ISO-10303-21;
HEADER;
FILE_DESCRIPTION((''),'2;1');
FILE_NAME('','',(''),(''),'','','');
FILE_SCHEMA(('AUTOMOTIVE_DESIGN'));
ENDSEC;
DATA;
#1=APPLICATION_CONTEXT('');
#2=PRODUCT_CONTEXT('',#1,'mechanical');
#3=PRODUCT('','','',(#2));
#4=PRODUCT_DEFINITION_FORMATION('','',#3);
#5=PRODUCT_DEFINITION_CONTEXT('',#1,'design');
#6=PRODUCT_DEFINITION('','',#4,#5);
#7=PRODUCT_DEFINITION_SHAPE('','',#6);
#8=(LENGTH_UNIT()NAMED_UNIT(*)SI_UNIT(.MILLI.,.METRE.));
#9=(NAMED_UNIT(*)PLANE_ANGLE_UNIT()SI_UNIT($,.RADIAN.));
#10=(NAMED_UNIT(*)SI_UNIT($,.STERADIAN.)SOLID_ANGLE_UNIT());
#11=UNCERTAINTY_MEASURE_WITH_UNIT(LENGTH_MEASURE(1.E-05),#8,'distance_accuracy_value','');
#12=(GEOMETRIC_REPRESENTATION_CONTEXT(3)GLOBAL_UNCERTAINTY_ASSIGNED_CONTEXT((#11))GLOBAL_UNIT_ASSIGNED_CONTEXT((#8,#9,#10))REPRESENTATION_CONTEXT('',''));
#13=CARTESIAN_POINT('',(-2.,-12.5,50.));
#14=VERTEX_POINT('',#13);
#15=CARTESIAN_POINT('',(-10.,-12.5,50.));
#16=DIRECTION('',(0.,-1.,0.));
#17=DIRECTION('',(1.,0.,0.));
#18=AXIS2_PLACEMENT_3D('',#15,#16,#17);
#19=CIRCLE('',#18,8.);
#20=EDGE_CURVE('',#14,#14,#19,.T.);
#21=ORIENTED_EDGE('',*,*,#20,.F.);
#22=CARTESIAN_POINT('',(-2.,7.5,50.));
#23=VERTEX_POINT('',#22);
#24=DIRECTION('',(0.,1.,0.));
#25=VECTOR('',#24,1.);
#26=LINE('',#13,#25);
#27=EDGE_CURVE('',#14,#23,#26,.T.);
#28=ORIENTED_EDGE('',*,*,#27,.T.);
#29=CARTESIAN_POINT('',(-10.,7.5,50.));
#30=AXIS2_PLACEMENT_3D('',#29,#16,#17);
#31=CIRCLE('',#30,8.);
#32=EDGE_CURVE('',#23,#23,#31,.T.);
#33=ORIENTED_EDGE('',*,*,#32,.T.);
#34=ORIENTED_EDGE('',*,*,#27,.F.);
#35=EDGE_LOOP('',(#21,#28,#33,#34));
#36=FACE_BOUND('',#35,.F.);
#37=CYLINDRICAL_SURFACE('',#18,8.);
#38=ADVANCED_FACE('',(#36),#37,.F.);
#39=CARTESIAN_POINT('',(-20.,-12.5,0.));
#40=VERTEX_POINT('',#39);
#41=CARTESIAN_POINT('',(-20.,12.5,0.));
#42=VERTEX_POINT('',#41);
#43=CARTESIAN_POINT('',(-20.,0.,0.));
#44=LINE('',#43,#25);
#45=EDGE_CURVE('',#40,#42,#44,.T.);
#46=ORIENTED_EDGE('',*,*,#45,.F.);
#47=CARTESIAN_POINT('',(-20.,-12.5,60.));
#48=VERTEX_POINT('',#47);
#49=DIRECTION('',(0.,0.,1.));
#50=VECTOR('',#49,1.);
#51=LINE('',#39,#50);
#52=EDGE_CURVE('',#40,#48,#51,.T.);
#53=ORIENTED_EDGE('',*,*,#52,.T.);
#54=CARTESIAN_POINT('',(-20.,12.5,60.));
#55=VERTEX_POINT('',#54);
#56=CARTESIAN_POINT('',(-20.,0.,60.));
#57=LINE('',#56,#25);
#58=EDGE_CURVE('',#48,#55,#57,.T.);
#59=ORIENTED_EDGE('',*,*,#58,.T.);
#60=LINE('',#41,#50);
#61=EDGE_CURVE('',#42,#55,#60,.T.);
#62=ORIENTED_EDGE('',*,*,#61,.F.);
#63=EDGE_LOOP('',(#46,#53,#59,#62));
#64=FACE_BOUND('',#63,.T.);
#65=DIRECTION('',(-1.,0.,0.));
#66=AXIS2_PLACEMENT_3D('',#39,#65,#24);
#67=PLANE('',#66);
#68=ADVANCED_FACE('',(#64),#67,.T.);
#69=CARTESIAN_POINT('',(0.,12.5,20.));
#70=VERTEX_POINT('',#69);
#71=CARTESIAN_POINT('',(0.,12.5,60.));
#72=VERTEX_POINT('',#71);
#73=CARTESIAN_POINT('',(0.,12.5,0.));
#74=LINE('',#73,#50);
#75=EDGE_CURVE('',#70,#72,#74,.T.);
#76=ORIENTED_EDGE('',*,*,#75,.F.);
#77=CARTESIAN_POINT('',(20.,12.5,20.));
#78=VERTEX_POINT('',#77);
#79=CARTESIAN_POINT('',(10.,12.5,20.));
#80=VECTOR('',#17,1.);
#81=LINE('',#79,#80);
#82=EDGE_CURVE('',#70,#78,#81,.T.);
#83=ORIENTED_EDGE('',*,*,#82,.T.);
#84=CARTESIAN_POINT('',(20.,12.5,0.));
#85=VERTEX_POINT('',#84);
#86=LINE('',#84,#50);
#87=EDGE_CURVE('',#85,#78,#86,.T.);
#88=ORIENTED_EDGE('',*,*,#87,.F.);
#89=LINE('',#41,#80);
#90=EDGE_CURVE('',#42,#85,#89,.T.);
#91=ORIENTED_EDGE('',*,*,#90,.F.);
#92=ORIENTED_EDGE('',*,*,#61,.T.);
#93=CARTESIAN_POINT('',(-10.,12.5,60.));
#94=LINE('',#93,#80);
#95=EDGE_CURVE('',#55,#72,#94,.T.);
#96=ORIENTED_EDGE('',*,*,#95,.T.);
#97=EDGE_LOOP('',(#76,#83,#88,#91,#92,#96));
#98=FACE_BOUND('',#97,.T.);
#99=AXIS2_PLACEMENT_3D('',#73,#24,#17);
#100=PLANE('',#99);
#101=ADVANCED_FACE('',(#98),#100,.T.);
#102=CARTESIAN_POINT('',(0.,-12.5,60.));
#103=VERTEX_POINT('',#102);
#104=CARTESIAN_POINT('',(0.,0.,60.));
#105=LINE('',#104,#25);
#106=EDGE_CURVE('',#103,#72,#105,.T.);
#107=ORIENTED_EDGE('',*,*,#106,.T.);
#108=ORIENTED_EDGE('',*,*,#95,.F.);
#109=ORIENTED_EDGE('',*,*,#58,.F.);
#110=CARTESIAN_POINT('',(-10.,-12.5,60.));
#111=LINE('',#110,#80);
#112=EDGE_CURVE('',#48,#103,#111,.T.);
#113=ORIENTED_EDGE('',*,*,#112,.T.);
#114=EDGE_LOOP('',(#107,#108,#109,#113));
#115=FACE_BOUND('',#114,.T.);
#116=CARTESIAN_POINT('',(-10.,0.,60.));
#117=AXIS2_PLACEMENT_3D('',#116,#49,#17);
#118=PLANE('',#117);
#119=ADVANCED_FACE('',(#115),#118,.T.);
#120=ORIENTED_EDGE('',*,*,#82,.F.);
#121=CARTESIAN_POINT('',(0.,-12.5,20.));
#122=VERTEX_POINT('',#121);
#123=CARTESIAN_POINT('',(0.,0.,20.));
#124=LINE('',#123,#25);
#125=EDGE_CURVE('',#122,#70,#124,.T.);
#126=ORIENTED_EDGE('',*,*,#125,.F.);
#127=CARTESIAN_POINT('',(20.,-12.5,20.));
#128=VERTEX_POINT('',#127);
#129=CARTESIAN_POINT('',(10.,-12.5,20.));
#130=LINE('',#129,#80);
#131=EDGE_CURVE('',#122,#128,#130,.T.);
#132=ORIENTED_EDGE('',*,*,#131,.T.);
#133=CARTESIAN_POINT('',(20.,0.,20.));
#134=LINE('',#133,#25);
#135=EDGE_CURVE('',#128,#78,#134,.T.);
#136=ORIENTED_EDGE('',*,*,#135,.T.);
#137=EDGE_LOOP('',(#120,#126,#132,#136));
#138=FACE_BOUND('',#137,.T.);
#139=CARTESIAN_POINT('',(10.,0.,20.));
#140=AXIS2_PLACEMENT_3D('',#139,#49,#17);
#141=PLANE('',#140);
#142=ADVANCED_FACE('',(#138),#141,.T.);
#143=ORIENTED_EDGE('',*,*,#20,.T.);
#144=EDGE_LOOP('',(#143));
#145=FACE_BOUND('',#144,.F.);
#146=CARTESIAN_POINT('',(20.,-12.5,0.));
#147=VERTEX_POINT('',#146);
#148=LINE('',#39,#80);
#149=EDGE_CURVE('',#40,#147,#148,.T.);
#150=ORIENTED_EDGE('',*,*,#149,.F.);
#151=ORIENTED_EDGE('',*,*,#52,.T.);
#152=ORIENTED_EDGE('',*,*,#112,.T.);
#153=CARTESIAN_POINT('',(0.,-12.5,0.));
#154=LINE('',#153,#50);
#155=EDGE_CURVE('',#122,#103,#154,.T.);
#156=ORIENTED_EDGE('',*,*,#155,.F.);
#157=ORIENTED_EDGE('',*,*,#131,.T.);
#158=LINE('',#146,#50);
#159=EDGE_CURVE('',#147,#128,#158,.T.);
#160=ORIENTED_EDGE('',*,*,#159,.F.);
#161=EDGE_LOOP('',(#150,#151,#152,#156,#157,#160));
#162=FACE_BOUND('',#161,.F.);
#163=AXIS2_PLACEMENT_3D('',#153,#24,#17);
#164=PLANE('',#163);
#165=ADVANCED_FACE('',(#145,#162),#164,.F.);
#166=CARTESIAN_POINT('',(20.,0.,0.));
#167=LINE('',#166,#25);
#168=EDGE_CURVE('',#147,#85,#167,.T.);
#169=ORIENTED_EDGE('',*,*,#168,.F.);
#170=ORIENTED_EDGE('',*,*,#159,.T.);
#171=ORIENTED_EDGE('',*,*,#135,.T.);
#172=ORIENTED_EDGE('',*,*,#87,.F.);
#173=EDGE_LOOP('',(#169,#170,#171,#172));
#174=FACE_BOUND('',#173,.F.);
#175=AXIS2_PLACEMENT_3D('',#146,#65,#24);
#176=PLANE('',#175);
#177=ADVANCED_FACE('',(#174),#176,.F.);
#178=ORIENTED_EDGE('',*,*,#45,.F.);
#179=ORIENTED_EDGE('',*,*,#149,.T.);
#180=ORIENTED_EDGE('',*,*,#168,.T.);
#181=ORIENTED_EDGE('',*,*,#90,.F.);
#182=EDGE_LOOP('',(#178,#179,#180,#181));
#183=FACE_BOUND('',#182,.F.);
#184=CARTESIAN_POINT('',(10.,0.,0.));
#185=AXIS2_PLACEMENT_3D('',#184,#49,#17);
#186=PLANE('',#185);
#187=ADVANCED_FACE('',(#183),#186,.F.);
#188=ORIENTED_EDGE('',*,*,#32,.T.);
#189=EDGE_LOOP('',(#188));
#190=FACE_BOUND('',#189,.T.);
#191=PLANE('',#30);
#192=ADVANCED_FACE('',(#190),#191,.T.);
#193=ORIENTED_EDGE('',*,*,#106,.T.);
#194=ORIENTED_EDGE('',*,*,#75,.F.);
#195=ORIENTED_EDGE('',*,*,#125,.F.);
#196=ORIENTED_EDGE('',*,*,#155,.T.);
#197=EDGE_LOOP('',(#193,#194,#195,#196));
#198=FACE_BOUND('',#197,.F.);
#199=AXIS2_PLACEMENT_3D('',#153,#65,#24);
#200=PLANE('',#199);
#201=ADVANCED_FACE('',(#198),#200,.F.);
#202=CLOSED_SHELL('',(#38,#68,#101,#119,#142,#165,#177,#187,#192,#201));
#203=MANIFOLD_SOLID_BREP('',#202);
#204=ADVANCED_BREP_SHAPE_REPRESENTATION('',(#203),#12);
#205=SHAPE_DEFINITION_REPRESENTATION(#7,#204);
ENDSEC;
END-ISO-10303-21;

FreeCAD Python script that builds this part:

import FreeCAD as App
import Part
import Sketcher
from FreeCAD import Vector

doc = App.newDocument("Part")
body = doc.addObject("PartDesign::Body", "Body")

sketch1 = body.newObject("Sketcher::SketchObject", "Sketch")
sketch1.AttachmentSupport = (doc.getObject("XY_Plane"), [""])
sketch1.MapMode = "FlatFace"
sketch1.addGeometry([
    Part.LineSegment(Vector(-20, 12, 0), Vector(-20, -12, 0)),
    Part.LineSegment(Vector(-20, -12, 0), Vector(0, -12, 0)),
    Part.LineSegment(Vector(0, -12, 0), Vector(0, 12, 0)),
    Part.LineSegment(Vector(0, 12, 0), Vector(-20, 12, 0)),
], False)
sketch1.addConstraint([
    Sketcher.Constraint("Coincident", 0, 2, 1, 1),
    Sketcher.Constraint("Coincident", 1, 2, 2, 1),
    Sketcher.Constraint("Coincident", 2, 2, 3, 1),
    Sketcher.Constraint("Coincident", 3, 2, 0, 1),
    Sketcher.Constraint("Vertical", 0),
    Sketcher.Constraint("Horizontal", 1),
    Sketcher.Constraint("Vertical", 2),
    Sketcher.Constraint("Horizontal", 3),
    Sketcher.Constraint("Symmetric", 1, 2, 2, 2, -1, 1),
    Sketcher.Constraint("DistanceX", 1, 1, 1, 2, 20.0),
    Sketcher.Constraint("DistanceY", 0, 2, 0, 1, 25.0),
])
pad1 = body.newObject("PartDesign::Pad", "Pad")
pad1.Profile = sketch1
pad1.Length = 60

sketch2 = body.newObject("Sketcher::SketchObject", "Sketch001")
sketch2.AttachmentSupport = (doc.getObject("XY_Plane"), [""])
sketch2.MapMode = "FlatFace"
sketch2.addGeometry([
    Part.LineSegment(Vector(0, 12, 0), Vector(0, -12, 0)),
    Part.LineSegment(Vector(0, -12, 0), Vector(20, -12, 0)),
    Part.LineSegment(Vector(20, -12, 0), Vector(20, 12, 0)),
    Part.LineSegment(Vector(20, 12, 0), Vector(0, 12, 0)),
], False)
sketch2.addConstraint([
    Sketcher.Constraint("Coincident", 0, 2, 1, 1),
    Sketcher.Constraint("Coincident", 1, 2, 2, 1),
    Sketcher.Constraint("Coincident", 2, 2, 3, 1),
    Sketcher.Constraint("Coincident", 3, 2, 0, 1),
    Sketcher.Constraint("Vertical", 0),
    Sketcher.Constraint("Horizontal", 1),
    Sketcher.Constraint("Vertical", 2),
    Sketcher.Constraint("Horizontal", 3),
    Sketcher.Constraint("Symmetric", 0, 2, 3, 2, -1, 1),
    Sketcher.Constraint("DistanceX", 1, 1, 1, 2, 20.0),
    Sketcher.Constraint("DistanceY", 0, 2, 0, 1, 25.0),
])
pad2 = body.newObject("PartDesign::Pad", "Pad001")
pad2.Profile = sketch2
pad2.Length = 20

sketch3 = body.newObject("Sketcher::SketchObject", "Sketch002")
sketch3.AttachmentSupport = (doc.getObject("XZ_Plane"), [""])
sketch3.MapMode = "FlatFace"
sketch3.AttachmentOffset = App.Placement(Vector(0, 0, 12.5), App.Rotation())
sketch3.addGeometry(Part.Circle(Vector(-10, 50, 0), Vector(0, 0, 1), 8), False)
sketch3.addConstraint([
    Sketcher.Constraint("Diameter", 0, 16.0),
    Sketcher.Constraint("DistanceX", 0, 3, -1, 1, 10.0),
    Sketcher.Constraint("DistanceY", -1, 1, 0, 3, 50.0),
])
pocket1 = body.newObject("PartDesign::Pocket", "Pocket")
pocket1.Profile = sketch3
pocket1.Length = 20

doc.recompute()
